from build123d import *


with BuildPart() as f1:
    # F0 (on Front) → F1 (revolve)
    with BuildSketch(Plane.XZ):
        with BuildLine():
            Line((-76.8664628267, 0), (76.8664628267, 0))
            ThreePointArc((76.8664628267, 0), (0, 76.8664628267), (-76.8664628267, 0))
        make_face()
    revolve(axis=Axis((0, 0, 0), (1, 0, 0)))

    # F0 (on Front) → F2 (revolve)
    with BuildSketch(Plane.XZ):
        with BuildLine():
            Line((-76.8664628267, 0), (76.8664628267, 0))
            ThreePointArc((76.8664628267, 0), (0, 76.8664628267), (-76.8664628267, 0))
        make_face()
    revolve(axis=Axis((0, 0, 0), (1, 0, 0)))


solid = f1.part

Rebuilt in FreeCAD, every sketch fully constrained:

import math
import FreeCAD as App
import Part
import Sketcher

doc = App.newDocument("Part")
params = doc.addObject("Spreadsheet::Sheet", "Params")
for row, (alias, value) in enumerate([
    ("revolution_angle", "360 deg"),
    ("revolution2_angle", "360 deg"),
], start=1):
    params.set(f"A{row}", alias)
    params.set(f"B{row}", "=" + value)
    params.setAlias(f"B{row}", alias)

body = doc.addObject("PartDesign::Body", "Body")

sketch1 = body.newObject("Sketcher::SketchObject", "Sketch")
sketch1.AttachmentSupport = (doc.getObject("XZ_Plane"), [""])
sketch1.MapMode = "FlatFace"
sketch1.addGeometry(Part.LineSegment(App.Vector(-76.866463, 0, 0), App.Vector(76.866463, 0, 0)), False)
sketch1.addGeometry(Part.ArcOfCircle(Part.Circle(App.Vector(0, 0, 0), App.Vector(0, 0, 1), 76.866463), math.radians(0), math.radians(180)), False)
sketch1.addConstraint(Sketcher.Constraint("Coincident", 0, 1, 1, 2))
sketch1.addConstraint(Sketcher.Constraint("Coincident", 1, 1, 0, 2))
sketch1.addConstraint(Sketcher.Constraint("Horizontal", 0))
sketch1.addConstraint(Sketcher.Constraint("Coincident", 1, 3, -1, 1))
sketch1.addConstraint(Sketcher.Constraint("PointOnObject", 0, 1, -1))
sketch1.addConstraint(Sketcher.Constraint("Radius", 1, 76.866463))
revolution = body.newObject("PartDesign::Revolution", "Revolution")
revolution.Profile = sketch1
revolution.ReferenceAxis = (sketch1, ["H_Axis"])
revolution.setExpression("Angle", "Params.revolution_angle")

sketch2 = body.newObject("Sketcher::SketchObject", "Sketch001")
sketch2.AttachmentSupport = (doc.getObject("XZ_Plane"), [""])
sketch2.MapMode = "FlatFace"
sketch2.addGeometry(Part.LineSegment(App.Vector(-76.866463, 0, 0), App.Vector(76.866463, 0, 0)), False)
sketch2.addGeometry(Part.ArcOfCircle(Part.Circle(App.Vector(0, 0, 0), App.Vector(0, 0, 1), 76.866463), math.radians(0), math.radians(180)), False)
sketch2.addConstraint(Sketcher.Constraint("Coincident", 0, 1, 1, 2))
sketch2.addConstraint(Sketcher.Constraint("Coincident", 1, 1, 0, 2))
sketch2.addConstraint(Sketcher.Constraint("Horizontal", 0))
sketch2.addConstraint(Sketcher.Constraint("Coincident", 1, 3, -1, 1))
sketch2.addConstraint(Sketcher.Constraint("PointOnObject", 0, 1, -1))
sketch2.addConstraint(Sketcher.Constraint("Radius", 1, 76.866463))
revolution2 = body.newObject("PartDesign::Revolution", "Revolution001")
revolution2.Profile = sketch2
revolution2.ReferenceAxis = (sketch2, ["H_Axis"])
revolution2.setExpression("Angle", "Params.revolution2_angle")

doc.recompute()
